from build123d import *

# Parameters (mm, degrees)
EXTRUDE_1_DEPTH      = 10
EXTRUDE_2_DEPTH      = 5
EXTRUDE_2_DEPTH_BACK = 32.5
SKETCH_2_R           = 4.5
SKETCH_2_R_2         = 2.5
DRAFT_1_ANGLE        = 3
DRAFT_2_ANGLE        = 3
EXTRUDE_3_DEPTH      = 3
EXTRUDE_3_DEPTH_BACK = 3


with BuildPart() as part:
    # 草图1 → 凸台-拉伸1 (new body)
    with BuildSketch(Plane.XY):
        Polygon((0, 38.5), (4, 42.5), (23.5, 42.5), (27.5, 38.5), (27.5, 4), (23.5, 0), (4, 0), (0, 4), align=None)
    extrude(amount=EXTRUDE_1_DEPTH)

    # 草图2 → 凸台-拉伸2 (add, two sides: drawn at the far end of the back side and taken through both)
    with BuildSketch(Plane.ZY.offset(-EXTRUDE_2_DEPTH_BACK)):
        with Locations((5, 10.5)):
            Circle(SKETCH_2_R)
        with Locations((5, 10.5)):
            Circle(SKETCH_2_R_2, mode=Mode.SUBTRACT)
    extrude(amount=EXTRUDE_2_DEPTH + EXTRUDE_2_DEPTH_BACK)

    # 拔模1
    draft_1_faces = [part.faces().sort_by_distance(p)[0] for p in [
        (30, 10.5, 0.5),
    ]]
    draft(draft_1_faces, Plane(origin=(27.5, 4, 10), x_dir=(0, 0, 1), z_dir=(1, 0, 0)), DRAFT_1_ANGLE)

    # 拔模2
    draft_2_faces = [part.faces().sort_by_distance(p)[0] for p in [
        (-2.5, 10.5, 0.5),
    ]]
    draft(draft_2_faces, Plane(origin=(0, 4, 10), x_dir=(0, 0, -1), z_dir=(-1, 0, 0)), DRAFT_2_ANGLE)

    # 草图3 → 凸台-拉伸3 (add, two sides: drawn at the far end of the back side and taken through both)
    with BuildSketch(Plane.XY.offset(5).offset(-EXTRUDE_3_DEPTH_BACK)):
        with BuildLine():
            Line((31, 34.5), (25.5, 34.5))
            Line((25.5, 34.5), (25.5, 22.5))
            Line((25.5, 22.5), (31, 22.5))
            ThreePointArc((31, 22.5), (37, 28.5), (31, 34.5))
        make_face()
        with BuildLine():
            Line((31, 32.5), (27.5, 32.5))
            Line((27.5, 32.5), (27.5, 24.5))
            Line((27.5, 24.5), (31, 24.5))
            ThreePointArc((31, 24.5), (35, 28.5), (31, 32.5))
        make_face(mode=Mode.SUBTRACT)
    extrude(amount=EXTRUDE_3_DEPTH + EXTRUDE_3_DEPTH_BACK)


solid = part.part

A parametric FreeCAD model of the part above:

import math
import FreeCAD as App
import Part
import Sketcher
from FreeCAD import Vector


def faces_at(feature, points):
    """Names of the faces that lie closest to the given points."""
    faces = feature.Shape.Faces
    near = lambda p: min(range(len(faces)), key=lambda i: faces[i].distToShape(Part.Vertex(*p))[0])
    return sorted({f"Face{near(p) + 1}" for p in points})

doc = App.newDocument("Part")
body = doc.addObject("PartDesign::Body", "Body")

sketch1 = doc.addObject("Sketcher::SketchObject", "Sketch")
body.addObject(sketch1)
sketch1.AttachmentSupport = (doc.XY_Plane, [""])
sketch1.MapMode = "FlatFace"
sketch1.addGeometry([
    Part.LineSegment(Vector(4, 42.5, 0), Vector(0, 38.5, 0)),
    Part.LineSegment(Vector(0, 38.5, 0), Vector(0, 4, 0)),
    Part.LineSegment(Vector(0, 4, 0), Vector(4, 0, 0)),
    Part.LineSegment(Vector(4, 0, 0), Vector(23.5, 0, 0)),
    Part.LineSegment(Vector(23.5, 0, 0), Vector(27.5, 4, 0)),
    Part.LineSegment(Vector(27.5, 4, 0), Vector(27.5, 38.5, 0)),
    Part.LineSegment(Vector(27.5, 38.5, 0), Vector(23.5, 42.5, 0)),
    Part.LineSegment(Vector(23.5, 42.5, 0), Vector(4, 42.5, 0)),
], False)
sketch1.addConstraint([
    Sketcher.Constraint("Coincident", 0, 2, 1, 1),
    Sketcher.Constraint("Coincident", 1, 2, 2, 1),
    Sketcher.Constraint("Coincident", 2, 2, 3, 1),
    Sketcher.Constraint("Coincident", 3, 2, 4, 1),
    Sketcher.Constraint("Coincident", 4, 2, 5, 1),
    Sketcher.Constraint("Coincident", 5, 2, 6, 1),
    Sketcher.Constraint("Coincident", 6, 2, 7, 1),
    Sketcher.Constraint("Coincident", 7, 2, 0, 1),
    Sketcher.Constraint("Vertical", 1),
    Sketcher.Constraint("Horizontal", 3),
    Sketcher.Constraint("Vertical", 5),
    Sketcher.Constraint("Horizontal", 7),
    Sketcher.Constraint("PointOnObject", 0, 2, -2),
    Sketcher.Constraint("PointOnObject", 2, 2, -1),
    Sketcher.Constraint("Perpendicular", 0, 2),
    Sketcher.Constraint("Perpendicular", 2, 4),
    Sketcher.Constraint("Perpendicular", 4, 6),
    Sketcher.Constraint("Horizontal", 1, 2, 4, 2),
    Sketcher.Constraint("Horizontal", 0, 2, 5, 2),
    Sketcher.Constraint("Vertical", 3, 2, 6, 2),
    Sketcher.Constraint("Vertical", 2, 2, 7, 2),
    Sketcher.Constraint("DistanceX", 3, 1, 3, 2, 19.5),
    Sketcher.Constraint("DistanceY", 1, 2, 1, 1, 34.5),
    Sketcher.Constraint("DistanceY", -1, 1, 1, 2, 4.0),
])
pad1 = doc.addObject("PartDesign::Pad", "Pad")
body.addObject(pad1)
pad1.Profile = sketch1
pad1.Length = 10

sketch2 = doc.addObject("Sketcher::SketchObject", "Sketch001")
body.addObject(sketch2)
sketch2.AttachmentSupport = (doc.YZ_Plane, [""])
sketch2.MapMode = "FlatFace"
sketch2.addGeometry([
    Part.Circle(Vector(10.5, 5, 0), Vector(0, 0, 1), 4.5),
    Part.Circle(Vector(10.5, 5, 0), Vector(0, 0, 1), 2.5),
], False)
sketch2.addConstraint([
    Sketcher.Constraint("Coincident", 1, 3, 0, 3),
    Sketcher.Constraint("Diameter", 0, 9.0),
    Sketcher.Constraint("Diameter", 1, 5.0),
    Sketcher.Constraint("DistanceY", -1, 1, 0, 3, 5.0),
    Sketcher.Constraint("DistanceX", -1, 1, 0, 3, 10.5),
])
pad2 = doc.addObject("PartDesign::Pad", "Pad001")
body.addObject(pad2)
pad2.Profile = sketch2
pad2.Type = "TwoLengths"
pad2.Length = 5
pad2.Length2 = 32.5
pad2.Reversed = True
doc.recompute()

datumplane = doc.addObject("PartDesign::Plane", "DatumPlane")
body.addObject(datumplane)
datumplane.AttachmentSupport = (doc.YZ_Plane, [""])
datumplane.MapMode = "FlatFace"
datumplane.AttachmentOffset = App.Placement(Vector(0, 0, 27.5), App.Rotation())
draft = doc.addObject("PartDesign::Draft", "Draft")
body.addObject(draft)
draft.Base = (pad2, faces_at(pad2, [(30, 10.5, 0.5)]))
draft.NeutralPlane = (datumplane, [""])
draft.Angle = 3
draft.Reversed = False
doc.recompute()

draft2 = doc.addObject("PartDesign::Draft", "Draft001")
body.addObject(draft2)
draft2.Base = (draft, faces_at(draft, [(-2.5, 10.5, 0.5)]))
draft2.NeutralPlane = (doc.YZ_Plane, [""])
draft2.Angle = 3
draft2.Reversed = True

sketch3 = doc.addObject("Sketcher::SketchObject", "Sketch002")
body.addObject(sketch3)
sketch3.AttachmentSupport = (doc.XY_Plane, [""])
sketch3.MapMode = "FlatFace"
sketch3.AttachmentOffset = App.Placement(Vector(0, 0, 5), App.Rotation())
sketch3.addGeometry([
    Part.LineSegment(Vector(31, 34.5, 0), Vector(25.5, 34.5, 0)),
    Part.LineSegment(Vector(25.5, 34.5, 0), Vector(25.5, 22.5, 0)),
    Part.LineSegment(Vector(25.5, 22.5, 0), Vector(31, 22.5, 0)),
    Part.ArcOfCircle(Part.Circle(Vector(31, 28.5, 0), Vector(0, 0, 1), 6), math.radians(-90), math.radians(90)),
    Part.LineSegment(Vector(27.5, 32.5, 0), Vector(31, 32.5, 0)),
    Part.ArcOfCircle(Part.Circle(Vector(31, 28.5, 0), Vector(0, 0, 1), 4), math.radians(-90), math.radians(90)),
    Part.LineSegment(Vector(31, 24.5, 0), Vector(27.5, 24.5, 0)),
    Part.LineSegment(Vector(27.5, 24.5, 0), Vector(27.5, 32.5, 0)),
], False)
sketch3.addConstraint([
    Sketcher.Constraint("Coincident", 0, 2, 1, 1),
    Sketcher.Constraint("Coincident", 1, 2, 2, 1),
    Sketcher.Constraint("Tangent", 2, 2, 3, 1),
    Sketcher.Constraint("Tangent", 3, 2, 0, 1),
    Sketcher.Constraint("Tangent", 4, 2, 5, 2),
    Sketcher.Constraint("Tangent", 5, 1, 6, 1),
    Sketcher.Constraint("Coincident", 6, 2, 7, 1),
    Sketcher.Constraint("Coincident", 7, 2, 4, 1),
    Sketcher.Constraint("Horizontal", 0),
    Sketcher.Constraint("Vertical", 1),
    Sketcher.Constraint("Horizontal", 2),
    Sketcher.Constraint("Horizontal", 4),
    Sketcher.Constraint("Horizontal", 6),
    Sketcher.Constraint("Vertical", 7),
    Sketcher.Constraint("Coincident", 5, 3, 3, 3),
    Sketcher.Constraint("Radius", 3, 6.0),
    Sketcher.Constraint("Radius", 5, 4.0),
    Sketcher.Constraint("DistanceX", 0, 2, 0, 1, 5.5),
    Sketcher.Constraint("DistanceX", 4, 1, 4, 2, 3.5),
    Sketcher.Constraint("DistanceX", -1, 1, 3, 3, 31.0),
    Sketcher.Constraint("DistanceY", -1, 1, 3, 3, 28.5),
])
pad3 = doc.addObject("PartDesign::Pad", "Pad002")
body.addObject(pad3)
pad3.Profile = sketch3
pad3.Type = "TwoLengths"
pad3.Length = 3
pad3.Length2 = 3

doc.recompute()
